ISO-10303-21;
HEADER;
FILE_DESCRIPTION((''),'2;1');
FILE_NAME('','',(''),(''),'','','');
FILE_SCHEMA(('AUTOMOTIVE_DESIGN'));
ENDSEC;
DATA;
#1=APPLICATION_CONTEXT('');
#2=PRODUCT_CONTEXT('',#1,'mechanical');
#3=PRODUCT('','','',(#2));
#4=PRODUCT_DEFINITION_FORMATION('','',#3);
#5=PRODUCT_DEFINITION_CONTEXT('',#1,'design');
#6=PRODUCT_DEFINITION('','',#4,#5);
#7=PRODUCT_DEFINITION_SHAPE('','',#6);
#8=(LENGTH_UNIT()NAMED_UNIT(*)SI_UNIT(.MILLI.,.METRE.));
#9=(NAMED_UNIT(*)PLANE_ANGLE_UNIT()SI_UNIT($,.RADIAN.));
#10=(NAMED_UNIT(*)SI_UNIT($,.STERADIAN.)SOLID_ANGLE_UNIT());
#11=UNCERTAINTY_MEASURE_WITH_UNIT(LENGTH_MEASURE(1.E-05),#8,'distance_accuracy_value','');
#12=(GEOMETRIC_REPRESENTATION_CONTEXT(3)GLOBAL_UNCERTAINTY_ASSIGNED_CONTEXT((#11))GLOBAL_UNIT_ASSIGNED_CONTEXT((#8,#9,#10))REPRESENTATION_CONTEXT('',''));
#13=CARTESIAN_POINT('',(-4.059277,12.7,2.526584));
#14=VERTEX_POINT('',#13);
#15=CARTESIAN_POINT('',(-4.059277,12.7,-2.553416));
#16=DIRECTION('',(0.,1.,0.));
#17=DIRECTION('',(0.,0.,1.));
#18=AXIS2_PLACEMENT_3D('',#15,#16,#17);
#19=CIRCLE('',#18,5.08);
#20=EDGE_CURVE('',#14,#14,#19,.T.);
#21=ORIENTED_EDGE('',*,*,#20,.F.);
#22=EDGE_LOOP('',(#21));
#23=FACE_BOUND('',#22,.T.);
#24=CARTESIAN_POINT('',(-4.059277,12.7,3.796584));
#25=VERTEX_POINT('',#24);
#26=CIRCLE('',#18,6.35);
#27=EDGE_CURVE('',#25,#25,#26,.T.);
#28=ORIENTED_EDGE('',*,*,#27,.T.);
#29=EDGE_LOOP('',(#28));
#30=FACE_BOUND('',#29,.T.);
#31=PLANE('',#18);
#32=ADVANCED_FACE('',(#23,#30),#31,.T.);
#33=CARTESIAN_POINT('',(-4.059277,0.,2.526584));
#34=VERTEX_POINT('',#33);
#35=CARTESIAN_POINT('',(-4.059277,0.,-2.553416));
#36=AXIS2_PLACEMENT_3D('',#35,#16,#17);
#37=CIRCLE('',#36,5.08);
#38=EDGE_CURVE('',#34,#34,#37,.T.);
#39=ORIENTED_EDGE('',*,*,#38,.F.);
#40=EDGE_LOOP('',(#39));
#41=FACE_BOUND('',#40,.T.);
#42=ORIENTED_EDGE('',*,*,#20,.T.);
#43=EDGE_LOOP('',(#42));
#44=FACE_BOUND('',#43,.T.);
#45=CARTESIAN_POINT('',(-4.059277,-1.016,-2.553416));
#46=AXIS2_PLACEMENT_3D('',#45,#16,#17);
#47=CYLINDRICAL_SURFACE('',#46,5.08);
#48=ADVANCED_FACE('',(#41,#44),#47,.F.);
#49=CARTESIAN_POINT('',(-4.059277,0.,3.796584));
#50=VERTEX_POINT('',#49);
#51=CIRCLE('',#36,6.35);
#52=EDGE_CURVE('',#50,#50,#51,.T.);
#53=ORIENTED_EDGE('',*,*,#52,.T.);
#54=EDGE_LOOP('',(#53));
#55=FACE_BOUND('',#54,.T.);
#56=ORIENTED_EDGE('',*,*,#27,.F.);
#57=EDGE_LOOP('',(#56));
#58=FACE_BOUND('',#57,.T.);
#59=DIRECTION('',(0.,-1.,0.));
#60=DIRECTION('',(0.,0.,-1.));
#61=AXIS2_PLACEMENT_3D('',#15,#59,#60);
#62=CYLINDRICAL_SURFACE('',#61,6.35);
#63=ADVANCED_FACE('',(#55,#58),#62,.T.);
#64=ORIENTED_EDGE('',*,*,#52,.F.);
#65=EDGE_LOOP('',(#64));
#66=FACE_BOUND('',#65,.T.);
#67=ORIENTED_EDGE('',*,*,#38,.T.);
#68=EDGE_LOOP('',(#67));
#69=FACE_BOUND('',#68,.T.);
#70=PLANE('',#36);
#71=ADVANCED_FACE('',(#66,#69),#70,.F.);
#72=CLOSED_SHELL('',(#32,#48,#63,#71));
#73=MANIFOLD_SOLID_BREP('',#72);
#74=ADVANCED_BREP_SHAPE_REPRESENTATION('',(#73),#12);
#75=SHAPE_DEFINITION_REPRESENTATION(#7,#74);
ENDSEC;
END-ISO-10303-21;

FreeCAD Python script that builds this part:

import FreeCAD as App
import Part
import Sketcher

V = App.Vector
Q = App.Units.Quantity

doc = App.newDocument("Part")
body = doc.addObject("PartDesign::Body", "Body")

sketch1 = body.newObject("Sketcher::SketchObject", "Sketch")
sketch1.AttachmentSupport = (doc.getObject("XZ_Plane"), [""])
sketch1.MapMode = "FlatFace"
sketch1.addGeometry(Part.Circle(V(-4.059277, -2.553416, 0), V(0, 0, 1), 6.35), False)
sketch1.addConstraint([
    Sketcher.Constraint("Diameter", 0, Q("0.5 in")),
    Sketcher.Constraint("DistanceX", 0, 3, -1, 1, Q("4.059277 mm")),
    Sketcher.Constraint("DistanceY", 0, 3, -1, 1, Q("2.553416 mm")),
])
pad1 = body.newObject("PartDesign::Pad", "Pad")
pad1.Profile = sketch1
pad1.Length = Q("0.5 in")
pad1.Reversed = True

sketch2 = body.newObject("Sketcher::SketchObject", "Sketch001")
sketch2.AttachmentSupport = (doc.getObject("XZ_Plane"), [""])
sketch2.MapMode = "FlatFace"
sketch2.AttachmentOffset = App.Placement(V(0, 0, -0.5 * 25.4), App.Rotation())
sketch2.addGeometry(Part.Circle(V(-4.059277, -2.553416, 0), V(0, 0, 1), 5.08), False)
sketch2.addConstraint([
    Sketcher.Constraint("Diameter", 0, Q("0.4 in")),
    Sketcher.Constraint("DistanceX", 0, 3, -1, 1, Q("4.059277 mm")),
    Sketcher.Constraint("DistanceY", 0, 3, -1, 1, Q("2.553416 mm")),
])
pocket1 = body.newObject("PartDesign::Pocket", "Pocket")
pocket1.Profile = sketch2
pocket1.Length = Q("0.54 in")
pocket1.Reversed = True

doc.recompute()
